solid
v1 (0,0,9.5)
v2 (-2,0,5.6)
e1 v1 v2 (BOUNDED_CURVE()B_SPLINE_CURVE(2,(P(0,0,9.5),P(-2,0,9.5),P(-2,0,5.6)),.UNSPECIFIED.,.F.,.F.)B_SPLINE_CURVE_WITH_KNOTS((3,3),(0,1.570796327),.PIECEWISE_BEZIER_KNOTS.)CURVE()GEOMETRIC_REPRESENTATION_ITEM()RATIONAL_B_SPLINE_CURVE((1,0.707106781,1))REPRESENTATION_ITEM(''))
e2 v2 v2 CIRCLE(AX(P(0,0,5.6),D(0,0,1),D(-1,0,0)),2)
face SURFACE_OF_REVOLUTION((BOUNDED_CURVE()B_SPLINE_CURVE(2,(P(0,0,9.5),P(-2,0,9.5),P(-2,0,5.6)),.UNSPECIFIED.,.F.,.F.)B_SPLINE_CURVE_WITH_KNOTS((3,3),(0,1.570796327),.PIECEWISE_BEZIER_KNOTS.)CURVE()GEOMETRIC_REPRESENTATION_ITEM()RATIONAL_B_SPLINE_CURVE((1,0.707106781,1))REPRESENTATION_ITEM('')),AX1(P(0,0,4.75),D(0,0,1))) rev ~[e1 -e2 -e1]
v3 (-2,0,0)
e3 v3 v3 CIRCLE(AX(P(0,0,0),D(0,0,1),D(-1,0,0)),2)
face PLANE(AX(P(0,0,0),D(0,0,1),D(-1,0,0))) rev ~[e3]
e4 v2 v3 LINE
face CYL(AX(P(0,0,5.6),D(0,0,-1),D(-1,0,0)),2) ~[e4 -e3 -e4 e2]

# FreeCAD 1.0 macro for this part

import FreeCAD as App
import Part
import Sketcher

doc = App.newDocument("Part")
body = doc.addObject("PartDesign::Body", "Body")

# Sketch on XZ plane
sketch1 = body.newObject("Sketcher::SketchObject", "Sketch")
sketch1.AttachmentSupport = (doc.getObject("XZ_Plane"), [""])
sketch1.MapMode = "FlatFace"
sketch1.addGeometry(Part.LineSegment(App.Vector(0, 0, 0), App.Vector(0, 9.5, 0)), False)
sketch1.addGeometry(Part.BSplineCurve([App.Vector(0, 9.5, 0), App.Vector(-2, 9.5, 0), App.Vector(-2, 5.6, 0)], [3, 3], [0, 1.570796327], False, 2, [1, 0.707106781, 1], False), False)
sketch1.addGeometry(Part.LineSegment(App.Vector(-2, 5.6, 0), App.Vector(-2, 0, 0)), False)
sketch1.addGeometry(Part.LineSegment(App.Vector(-2, 0, 0), App.Vector(0, 0, 0)), False)
sketch1.addConstraint(Sketcher.Constraint("Block", 1))
sketch1.addConstraint(Sketcher.Constraint("Coincident", 0, 2, 1, 1))
sketch1.addConstraint(Sketcher.Constraint("Coincident", 1, 2, 2, 1))
sketch1.addConstraint(Sketcher.Constraint("Coincident", 2, 2, 3, 1))
sketch1.addConstraint(Sketcher.Constraint("Coincident", 3, 2, 0, 1))
sketch1.addConstraint(Sketcher.Constraint("Vertical", 0))
sketch1.addConstraint(Sketcher.Constraint("Vertical", 2))
sketch1.addConstraint(Sketcher.Constraint("Horizontal", 3))
sketch1.addConstraint(Sketcher.Constraint("PointOnObject", 2, 2, -1))
revolution = body.newObject("PartDesign::Revolution", "Revolution")
revolution.Profile = sketch1
revolution.ReferenceAxis = (sketch1, ["V_Axis"])
revolution.Angle = 360

doc.recompute()
